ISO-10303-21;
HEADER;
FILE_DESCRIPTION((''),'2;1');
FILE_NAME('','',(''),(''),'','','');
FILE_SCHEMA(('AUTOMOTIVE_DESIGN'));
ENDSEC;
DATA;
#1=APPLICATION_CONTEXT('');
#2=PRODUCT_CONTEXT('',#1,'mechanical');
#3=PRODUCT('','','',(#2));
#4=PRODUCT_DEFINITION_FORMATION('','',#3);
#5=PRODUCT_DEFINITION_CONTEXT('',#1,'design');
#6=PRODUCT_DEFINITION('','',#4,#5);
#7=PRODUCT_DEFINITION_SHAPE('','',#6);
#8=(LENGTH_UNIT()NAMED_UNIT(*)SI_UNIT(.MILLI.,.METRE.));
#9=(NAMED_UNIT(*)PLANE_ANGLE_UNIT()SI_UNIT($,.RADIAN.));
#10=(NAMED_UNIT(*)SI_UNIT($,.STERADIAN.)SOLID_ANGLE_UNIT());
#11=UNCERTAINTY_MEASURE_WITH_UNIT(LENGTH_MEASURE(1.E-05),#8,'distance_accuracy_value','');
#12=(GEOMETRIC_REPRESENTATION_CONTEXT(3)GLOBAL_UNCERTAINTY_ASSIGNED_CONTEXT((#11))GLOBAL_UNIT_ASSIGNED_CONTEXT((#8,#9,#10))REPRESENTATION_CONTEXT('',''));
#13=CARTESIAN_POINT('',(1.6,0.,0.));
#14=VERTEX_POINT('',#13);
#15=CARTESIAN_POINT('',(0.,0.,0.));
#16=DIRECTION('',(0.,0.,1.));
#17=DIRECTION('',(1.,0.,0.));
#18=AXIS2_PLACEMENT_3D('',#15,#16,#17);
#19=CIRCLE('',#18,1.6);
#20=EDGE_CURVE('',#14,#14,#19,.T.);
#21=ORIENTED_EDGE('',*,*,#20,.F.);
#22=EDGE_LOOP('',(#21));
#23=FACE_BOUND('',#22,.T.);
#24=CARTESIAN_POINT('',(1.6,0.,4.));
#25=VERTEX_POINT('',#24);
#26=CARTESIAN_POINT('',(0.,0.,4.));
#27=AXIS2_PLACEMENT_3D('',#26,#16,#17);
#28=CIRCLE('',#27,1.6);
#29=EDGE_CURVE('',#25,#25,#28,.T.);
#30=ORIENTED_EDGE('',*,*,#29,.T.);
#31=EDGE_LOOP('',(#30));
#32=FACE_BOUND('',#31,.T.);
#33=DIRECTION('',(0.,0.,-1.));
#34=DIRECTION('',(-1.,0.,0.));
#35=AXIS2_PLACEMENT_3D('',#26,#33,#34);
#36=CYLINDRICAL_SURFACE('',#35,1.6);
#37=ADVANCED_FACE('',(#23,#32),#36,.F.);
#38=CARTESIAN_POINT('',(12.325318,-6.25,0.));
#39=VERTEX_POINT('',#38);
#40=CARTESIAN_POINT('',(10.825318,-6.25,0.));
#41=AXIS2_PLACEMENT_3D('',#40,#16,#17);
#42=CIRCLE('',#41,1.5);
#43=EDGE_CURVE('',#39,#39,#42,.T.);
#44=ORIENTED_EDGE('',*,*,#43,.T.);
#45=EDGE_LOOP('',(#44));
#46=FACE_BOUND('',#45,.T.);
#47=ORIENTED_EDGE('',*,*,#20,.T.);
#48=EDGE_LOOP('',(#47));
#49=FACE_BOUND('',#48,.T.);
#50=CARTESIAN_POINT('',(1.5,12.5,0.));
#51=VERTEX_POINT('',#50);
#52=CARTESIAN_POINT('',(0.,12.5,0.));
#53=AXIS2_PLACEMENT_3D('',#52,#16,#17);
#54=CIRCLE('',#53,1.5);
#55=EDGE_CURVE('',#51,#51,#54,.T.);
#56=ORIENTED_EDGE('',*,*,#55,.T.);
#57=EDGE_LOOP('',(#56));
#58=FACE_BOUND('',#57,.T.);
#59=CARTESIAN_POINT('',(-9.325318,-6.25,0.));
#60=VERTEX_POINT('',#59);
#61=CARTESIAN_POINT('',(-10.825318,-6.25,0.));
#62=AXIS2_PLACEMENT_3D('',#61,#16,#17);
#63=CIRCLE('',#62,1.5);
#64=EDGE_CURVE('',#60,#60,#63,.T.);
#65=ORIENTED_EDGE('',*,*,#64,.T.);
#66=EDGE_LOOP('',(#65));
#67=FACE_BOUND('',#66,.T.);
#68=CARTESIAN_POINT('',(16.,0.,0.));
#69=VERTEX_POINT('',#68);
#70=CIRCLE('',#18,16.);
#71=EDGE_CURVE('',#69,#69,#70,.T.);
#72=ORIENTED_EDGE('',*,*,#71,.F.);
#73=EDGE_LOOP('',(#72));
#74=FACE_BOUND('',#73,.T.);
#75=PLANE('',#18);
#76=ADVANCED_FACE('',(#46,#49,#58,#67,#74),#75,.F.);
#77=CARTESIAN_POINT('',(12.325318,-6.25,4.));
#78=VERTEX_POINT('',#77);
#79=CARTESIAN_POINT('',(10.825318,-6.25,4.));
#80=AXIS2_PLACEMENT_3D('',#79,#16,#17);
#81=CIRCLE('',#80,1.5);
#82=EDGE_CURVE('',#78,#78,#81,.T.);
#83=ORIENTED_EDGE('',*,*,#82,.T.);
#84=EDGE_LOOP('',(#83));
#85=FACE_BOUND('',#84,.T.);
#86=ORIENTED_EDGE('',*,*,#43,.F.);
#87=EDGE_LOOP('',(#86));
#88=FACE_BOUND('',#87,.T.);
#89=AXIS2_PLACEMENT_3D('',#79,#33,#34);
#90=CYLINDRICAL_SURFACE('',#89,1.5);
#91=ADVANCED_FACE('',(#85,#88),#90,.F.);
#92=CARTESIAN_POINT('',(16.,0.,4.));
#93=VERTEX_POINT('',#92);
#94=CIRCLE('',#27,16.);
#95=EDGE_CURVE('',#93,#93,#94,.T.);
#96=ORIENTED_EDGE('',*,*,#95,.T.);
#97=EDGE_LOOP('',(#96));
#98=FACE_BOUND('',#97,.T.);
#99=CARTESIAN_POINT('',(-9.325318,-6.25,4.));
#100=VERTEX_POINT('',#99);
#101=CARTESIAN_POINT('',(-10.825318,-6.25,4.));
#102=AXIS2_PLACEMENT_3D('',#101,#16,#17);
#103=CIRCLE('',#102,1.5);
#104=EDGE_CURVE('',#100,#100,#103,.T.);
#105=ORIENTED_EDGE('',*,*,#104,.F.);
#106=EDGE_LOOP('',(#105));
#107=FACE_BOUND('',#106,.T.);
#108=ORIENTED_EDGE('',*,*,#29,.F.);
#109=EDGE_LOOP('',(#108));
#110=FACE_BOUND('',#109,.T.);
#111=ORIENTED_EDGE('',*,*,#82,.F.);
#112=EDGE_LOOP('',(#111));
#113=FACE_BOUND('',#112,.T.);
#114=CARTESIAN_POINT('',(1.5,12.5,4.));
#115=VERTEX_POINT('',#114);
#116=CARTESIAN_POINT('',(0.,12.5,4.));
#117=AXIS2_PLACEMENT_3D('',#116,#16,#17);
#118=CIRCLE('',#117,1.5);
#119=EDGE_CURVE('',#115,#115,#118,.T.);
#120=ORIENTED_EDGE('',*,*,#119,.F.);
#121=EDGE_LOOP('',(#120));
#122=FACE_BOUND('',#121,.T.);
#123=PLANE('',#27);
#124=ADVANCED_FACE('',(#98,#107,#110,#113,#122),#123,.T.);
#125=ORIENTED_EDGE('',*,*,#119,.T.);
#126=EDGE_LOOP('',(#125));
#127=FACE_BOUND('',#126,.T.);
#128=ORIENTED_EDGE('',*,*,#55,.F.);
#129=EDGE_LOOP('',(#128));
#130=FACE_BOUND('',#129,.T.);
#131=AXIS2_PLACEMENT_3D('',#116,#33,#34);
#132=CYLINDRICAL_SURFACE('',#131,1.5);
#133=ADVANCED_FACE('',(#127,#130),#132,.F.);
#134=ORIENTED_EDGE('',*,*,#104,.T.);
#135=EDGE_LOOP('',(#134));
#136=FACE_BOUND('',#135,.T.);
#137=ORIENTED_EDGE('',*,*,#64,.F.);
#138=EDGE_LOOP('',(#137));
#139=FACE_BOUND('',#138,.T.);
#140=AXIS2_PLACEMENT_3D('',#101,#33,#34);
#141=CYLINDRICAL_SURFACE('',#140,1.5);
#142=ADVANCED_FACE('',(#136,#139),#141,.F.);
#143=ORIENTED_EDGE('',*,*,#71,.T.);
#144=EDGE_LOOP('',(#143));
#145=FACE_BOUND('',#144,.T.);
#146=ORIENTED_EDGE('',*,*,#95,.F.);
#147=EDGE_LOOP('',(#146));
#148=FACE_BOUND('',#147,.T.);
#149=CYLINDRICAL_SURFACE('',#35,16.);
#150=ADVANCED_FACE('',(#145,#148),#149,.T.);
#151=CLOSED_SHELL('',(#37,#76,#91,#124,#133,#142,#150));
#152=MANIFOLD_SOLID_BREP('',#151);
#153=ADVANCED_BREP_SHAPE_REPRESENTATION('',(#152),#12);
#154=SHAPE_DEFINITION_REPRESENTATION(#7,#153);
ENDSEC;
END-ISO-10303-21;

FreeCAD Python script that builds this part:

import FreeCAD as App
import Part
import Sketcher
from FreeCAD import Vector

doc = App.newDocument("Part")
body = doc.addObject("PartDesign::Body", "Body")

sketch1 = body.newObject("Sketcher::SketchObject", "Sketch")
sketch1.AttachmentSupport = (doc.getObject("XY_Plane"), [""])
sketch1.MapMode = "FlatFace"
sketch1.addGeometry(Part.Circle(Vector(0, 0, 0), Vector(0, 0, 1), 16), False)
sketch1.addGeometry(Part.Circle(Vector(-10.8, -6.2, 0), Vector(0, 0, 1), 1.5), False)
sketch1.addGeometry(Part.Circle(Vector(10.8, -6.2, 0), Vector(0, 0, 1), 1.5), False)
sketch1.addGeometry(Part.Circle(Vector(0, 0, 0), Vector(0, 0, 1), 1.6), False)
sketch1.addGeometry(Part.Circle(Vector(0, 12.5, 0), Vector(0, 0, 1), 1.5), False)
sketch1.addConstraint(Sketcher.Constraint("Coincident", 0, 3, -1, 1))
sketch1.addConstraint(Sketcher.Constraint("Coincident", 3, 3, -1, 1))
sketch1.addConstraint(Sketcher.Constraint("Equal", 1, 2))
sketch1.addConstraint(Sketcher.Constraint("Equal", 2, 4))
sketch1.addConstraint(Sketcher.Constraint("Symmetric", 1, 3, 2, 3, -2))
sketch1.addConstraint(Sketcher.Constraint("PointOnObject", 4, 3, -2))
sketch1.addConstraint(Sketcher.Constraint("Diameter", 0, 32.0))
sketch1.addConstraint(Sketcher.Constraint("Diameter", 1, 3.0))
sketch1.addConstraint(Sketcher.Constraint("Diameter", 3, 3.2))
sketch1.addConstraint(Sketcher.Constraint("DistanceY", -1, 1, 4, 3, 12.5))
sketch1.addConstraint(Sketcher.Constraint("DistanceY", 1, 3, -1, 1, 6.25))
sketch1.addConstraint(Sketcher.Constraint("DistanceX", 1, 3, -1, 1, 10.825318))
pad1 = body.newObject("PartDesign::Pad", "Pad")
pad1.Profile = sketch1
pad1.Length = 4

doc.recompute()
